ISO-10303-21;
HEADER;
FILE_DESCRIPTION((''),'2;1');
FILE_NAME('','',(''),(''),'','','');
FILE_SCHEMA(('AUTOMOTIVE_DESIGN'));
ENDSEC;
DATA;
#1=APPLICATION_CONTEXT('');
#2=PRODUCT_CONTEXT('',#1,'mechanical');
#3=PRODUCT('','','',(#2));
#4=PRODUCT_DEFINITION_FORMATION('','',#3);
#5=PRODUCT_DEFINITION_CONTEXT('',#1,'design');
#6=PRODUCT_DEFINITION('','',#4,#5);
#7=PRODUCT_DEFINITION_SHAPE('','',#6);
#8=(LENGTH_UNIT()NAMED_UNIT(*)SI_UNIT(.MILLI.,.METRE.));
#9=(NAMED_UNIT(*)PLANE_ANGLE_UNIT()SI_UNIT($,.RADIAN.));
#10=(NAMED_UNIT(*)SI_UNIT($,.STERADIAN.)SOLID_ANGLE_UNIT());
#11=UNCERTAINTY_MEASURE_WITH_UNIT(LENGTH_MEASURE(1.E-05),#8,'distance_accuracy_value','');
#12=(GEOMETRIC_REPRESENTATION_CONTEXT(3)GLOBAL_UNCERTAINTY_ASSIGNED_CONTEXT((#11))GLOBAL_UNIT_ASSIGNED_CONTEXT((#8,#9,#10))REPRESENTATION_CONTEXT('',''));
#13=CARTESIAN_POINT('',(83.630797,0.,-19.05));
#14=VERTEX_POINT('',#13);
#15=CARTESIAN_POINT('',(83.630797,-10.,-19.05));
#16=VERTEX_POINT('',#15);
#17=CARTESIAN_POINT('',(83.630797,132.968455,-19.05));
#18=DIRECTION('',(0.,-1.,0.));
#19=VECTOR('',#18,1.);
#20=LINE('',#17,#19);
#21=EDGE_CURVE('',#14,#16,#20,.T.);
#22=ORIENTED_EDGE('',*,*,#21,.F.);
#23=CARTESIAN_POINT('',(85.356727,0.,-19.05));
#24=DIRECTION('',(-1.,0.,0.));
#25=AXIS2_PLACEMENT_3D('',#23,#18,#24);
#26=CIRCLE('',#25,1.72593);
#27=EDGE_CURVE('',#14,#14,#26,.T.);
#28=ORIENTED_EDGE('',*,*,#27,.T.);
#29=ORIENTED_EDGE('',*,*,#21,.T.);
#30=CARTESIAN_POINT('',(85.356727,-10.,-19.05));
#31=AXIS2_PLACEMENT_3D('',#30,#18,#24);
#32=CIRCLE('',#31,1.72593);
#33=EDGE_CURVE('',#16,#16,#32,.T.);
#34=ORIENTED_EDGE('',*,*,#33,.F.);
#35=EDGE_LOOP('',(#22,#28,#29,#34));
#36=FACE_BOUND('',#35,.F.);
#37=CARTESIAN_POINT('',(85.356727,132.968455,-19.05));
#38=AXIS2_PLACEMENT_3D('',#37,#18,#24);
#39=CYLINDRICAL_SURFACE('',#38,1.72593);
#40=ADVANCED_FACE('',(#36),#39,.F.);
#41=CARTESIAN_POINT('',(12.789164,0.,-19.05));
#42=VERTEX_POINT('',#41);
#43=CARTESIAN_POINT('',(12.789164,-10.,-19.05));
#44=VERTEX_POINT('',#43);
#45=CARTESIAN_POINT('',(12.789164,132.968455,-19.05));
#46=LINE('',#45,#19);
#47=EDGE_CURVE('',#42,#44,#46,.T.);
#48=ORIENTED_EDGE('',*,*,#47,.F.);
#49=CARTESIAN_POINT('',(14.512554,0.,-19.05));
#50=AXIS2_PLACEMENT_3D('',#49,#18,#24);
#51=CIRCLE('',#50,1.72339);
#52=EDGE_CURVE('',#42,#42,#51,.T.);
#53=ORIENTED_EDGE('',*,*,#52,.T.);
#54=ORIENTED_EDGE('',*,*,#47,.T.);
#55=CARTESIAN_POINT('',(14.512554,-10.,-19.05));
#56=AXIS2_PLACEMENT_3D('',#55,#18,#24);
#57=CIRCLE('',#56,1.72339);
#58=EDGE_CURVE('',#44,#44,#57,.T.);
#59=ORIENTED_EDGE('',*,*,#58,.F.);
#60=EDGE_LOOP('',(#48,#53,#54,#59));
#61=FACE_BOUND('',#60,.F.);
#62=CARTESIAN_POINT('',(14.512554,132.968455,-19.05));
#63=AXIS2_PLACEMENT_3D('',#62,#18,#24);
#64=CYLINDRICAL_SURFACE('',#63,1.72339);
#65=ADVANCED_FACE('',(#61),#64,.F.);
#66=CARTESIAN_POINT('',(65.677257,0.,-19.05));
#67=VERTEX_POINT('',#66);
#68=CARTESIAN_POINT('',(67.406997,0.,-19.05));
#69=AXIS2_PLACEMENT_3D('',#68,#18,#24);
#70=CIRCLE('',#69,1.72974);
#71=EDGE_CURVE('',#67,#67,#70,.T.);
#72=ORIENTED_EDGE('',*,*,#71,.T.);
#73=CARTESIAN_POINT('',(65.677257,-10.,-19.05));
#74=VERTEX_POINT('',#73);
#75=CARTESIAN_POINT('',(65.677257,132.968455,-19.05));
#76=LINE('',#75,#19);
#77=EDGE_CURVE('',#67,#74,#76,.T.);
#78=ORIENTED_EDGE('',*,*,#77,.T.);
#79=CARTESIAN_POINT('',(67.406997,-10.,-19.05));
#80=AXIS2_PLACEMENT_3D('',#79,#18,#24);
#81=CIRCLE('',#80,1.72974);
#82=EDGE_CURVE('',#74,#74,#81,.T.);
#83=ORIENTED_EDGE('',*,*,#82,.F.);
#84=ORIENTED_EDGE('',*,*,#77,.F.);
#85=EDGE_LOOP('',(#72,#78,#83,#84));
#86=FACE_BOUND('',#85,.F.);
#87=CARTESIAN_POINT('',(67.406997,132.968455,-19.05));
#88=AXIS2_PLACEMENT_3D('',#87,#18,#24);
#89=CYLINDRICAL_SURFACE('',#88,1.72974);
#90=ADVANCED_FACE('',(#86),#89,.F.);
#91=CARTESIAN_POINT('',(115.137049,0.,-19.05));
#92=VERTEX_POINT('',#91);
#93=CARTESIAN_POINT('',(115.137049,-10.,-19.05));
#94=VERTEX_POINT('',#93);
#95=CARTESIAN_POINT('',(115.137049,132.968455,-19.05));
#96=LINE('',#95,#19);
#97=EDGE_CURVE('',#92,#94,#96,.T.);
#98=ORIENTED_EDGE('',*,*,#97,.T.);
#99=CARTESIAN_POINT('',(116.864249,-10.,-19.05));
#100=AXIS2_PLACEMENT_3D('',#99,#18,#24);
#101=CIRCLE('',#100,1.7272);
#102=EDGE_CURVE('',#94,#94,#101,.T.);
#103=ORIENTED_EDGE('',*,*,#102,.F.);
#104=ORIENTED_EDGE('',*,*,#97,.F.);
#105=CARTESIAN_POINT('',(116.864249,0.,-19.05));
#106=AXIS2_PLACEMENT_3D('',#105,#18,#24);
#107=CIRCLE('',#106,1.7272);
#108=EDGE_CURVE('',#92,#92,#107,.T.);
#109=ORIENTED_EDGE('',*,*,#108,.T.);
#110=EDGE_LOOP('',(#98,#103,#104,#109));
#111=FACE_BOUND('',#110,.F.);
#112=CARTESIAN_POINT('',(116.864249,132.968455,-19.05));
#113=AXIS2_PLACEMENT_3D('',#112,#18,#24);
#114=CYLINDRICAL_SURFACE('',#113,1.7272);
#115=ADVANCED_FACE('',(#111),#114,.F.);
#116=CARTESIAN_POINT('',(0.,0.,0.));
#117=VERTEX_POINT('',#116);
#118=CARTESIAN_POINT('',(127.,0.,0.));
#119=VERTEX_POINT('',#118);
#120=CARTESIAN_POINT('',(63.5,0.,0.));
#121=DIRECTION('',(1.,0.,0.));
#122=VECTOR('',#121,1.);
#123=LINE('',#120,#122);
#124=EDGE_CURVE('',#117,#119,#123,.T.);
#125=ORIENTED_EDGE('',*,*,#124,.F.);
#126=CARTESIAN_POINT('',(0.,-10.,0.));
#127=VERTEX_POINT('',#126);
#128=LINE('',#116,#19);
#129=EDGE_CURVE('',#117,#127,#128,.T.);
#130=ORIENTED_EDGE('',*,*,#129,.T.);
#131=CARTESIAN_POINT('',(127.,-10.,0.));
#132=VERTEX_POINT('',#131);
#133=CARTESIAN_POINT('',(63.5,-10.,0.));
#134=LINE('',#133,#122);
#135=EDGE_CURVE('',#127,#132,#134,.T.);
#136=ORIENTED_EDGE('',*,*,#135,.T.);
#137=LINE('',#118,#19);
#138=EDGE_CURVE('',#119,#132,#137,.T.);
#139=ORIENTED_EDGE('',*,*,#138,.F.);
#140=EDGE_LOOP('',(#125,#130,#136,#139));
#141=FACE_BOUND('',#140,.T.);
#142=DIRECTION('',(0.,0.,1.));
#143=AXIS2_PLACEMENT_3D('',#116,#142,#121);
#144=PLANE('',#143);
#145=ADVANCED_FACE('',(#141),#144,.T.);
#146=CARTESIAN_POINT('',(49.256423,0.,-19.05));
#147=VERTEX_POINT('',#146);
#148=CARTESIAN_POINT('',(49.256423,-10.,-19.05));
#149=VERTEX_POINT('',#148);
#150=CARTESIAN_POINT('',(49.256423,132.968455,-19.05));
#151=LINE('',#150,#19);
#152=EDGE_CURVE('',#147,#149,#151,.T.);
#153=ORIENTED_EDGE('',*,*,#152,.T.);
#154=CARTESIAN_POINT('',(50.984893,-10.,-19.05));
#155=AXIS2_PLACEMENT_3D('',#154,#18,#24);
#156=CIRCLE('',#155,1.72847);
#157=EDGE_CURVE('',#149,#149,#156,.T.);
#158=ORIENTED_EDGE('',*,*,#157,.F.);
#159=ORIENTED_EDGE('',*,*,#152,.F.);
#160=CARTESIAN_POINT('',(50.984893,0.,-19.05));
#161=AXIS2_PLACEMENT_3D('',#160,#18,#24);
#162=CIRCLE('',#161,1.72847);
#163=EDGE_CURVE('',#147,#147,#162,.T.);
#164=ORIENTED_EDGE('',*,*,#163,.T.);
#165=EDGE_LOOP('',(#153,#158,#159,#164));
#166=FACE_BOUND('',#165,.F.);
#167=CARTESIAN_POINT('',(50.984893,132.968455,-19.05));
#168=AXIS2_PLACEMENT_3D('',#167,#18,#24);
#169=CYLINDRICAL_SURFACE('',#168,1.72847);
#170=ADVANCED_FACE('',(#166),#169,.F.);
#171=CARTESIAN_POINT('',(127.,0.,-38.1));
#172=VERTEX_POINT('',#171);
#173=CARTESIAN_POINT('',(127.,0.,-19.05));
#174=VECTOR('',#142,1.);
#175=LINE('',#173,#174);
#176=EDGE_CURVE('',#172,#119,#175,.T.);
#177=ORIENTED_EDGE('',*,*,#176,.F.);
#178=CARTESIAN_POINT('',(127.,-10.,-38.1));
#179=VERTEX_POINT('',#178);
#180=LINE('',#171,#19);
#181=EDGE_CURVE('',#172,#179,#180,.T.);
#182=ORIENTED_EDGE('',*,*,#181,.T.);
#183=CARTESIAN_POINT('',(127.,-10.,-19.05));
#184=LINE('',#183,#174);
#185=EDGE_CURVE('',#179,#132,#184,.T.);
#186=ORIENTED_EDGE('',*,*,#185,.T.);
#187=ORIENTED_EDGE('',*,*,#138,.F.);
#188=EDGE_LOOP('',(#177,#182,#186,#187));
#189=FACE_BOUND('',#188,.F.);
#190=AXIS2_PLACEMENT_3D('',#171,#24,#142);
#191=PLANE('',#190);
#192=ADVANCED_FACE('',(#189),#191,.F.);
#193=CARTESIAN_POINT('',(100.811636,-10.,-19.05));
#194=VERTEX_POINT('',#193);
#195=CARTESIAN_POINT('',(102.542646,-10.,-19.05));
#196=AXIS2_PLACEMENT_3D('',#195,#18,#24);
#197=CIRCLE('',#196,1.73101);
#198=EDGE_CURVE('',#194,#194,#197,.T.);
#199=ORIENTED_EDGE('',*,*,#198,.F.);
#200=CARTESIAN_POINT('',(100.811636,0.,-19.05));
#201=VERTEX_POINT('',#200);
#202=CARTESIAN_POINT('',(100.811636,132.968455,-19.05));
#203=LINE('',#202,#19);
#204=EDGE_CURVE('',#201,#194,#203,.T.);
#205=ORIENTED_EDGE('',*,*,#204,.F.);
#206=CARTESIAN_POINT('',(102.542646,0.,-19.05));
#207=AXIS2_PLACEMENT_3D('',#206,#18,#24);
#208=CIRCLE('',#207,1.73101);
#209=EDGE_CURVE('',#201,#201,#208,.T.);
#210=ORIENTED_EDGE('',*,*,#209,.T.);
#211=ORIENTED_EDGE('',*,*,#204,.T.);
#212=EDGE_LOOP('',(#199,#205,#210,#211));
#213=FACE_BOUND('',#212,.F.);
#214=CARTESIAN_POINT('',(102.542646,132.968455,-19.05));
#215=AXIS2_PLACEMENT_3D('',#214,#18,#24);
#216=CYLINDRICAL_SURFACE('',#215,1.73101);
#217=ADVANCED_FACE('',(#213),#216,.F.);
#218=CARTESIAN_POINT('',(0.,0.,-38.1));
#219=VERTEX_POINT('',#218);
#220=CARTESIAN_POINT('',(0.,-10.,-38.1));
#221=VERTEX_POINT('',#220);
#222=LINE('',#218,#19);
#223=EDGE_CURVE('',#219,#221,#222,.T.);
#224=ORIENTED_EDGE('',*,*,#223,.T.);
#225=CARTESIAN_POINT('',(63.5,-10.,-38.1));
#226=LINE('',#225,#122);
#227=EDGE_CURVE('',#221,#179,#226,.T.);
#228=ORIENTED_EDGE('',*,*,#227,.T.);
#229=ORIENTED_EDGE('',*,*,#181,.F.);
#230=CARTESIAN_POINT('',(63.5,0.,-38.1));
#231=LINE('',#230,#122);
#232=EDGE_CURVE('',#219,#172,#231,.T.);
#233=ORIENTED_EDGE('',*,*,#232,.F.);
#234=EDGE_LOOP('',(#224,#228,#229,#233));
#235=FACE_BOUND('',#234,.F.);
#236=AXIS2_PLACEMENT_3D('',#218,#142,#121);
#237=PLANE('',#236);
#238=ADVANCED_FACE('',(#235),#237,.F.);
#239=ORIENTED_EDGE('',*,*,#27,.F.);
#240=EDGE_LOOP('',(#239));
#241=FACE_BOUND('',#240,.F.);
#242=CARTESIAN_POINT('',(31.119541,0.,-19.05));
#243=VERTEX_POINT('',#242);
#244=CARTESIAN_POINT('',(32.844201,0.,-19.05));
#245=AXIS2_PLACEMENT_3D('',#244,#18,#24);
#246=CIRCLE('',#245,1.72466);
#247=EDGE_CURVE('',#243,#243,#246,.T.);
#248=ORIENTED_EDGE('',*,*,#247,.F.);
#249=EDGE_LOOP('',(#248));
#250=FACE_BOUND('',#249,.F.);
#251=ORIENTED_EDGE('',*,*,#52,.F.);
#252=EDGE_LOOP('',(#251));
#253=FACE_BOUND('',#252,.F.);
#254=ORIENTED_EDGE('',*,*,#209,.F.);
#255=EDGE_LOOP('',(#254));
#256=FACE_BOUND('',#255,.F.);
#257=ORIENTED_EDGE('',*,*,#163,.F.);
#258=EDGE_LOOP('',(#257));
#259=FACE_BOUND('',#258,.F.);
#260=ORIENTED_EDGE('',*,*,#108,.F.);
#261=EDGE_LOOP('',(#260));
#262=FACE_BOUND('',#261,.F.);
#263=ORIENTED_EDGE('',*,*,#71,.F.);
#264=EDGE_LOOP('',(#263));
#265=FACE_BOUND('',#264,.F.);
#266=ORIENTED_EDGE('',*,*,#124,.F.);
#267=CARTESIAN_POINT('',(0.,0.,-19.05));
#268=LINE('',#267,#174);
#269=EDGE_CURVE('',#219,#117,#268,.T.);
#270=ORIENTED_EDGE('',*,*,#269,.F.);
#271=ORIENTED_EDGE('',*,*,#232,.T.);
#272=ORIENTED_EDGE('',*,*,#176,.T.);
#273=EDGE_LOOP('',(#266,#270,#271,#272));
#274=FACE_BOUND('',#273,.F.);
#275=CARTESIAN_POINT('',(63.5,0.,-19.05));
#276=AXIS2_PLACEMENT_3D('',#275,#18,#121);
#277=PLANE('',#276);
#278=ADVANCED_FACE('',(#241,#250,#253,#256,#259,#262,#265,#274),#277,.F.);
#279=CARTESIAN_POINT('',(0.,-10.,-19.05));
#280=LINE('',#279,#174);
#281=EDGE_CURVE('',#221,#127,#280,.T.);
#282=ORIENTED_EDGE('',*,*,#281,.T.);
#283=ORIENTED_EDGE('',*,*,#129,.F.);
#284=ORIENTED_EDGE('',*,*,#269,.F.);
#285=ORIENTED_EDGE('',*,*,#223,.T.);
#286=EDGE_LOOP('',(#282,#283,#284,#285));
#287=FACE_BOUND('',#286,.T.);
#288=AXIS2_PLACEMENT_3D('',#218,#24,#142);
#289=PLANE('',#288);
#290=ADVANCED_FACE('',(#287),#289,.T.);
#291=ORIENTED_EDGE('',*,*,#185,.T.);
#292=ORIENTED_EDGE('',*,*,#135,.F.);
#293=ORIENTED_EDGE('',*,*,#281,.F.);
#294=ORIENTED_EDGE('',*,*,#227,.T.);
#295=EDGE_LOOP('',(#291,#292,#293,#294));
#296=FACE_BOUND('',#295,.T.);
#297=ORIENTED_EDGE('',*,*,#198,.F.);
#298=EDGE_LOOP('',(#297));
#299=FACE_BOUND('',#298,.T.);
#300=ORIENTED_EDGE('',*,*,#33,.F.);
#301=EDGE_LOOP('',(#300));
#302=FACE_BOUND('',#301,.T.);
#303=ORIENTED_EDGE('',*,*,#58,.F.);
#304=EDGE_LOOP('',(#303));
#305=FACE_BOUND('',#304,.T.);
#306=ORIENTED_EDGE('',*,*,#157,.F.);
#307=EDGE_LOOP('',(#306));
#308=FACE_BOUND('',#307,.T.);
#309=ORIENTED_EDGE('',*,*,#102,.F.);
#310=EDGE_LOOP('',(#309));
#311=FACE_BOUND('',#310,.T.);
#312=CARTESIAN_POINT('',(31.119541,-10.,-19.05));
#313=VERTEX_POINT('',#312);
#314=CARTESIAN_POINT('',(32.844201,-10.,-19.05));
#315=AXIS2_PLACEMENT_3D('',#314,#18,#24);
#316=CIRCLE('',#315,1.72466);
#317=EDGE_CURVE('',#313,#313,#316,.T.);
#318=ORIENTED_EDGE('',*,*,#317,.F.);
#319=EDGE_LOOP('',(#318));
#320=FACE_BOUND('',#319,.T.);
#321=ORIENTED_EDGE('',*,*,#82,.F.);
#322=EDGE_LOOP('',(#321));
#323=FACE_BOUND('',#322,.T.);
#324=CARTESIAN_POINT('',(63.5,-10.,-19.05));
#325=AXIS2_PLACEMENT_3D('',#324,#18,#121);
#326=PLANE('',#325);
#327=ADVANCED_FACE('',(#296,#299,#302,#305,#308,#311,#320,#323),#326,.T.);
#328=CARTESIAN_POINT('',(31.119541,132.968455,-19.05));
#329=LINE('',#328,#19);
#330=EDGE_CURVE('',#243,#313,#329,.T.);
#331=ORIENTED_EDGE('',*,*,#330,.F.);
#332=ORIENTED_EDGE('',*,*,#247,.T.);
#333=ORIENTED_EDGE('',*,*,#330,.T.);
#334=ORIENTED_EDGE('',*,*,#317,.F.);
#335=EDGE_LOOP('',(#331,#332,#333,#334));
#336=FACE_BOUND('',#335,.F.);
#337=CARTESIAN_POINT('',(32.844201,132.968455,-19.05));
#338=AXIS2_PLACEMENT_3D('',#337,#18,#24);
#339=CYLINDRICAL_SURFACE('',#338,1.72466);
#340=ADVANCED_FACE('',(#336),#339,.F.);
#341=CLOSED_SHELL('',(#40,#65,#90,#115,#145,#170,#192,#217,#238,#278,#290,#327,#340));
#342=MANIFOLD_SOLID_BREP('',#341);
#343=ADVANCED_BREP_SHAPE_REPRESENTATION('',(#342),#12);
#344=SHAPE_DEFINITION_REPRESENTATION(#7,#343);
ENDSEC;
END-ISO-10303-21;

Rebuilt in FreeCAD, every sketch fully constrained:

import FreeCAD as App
import Part
import Sketcher
Q = App.Units.Quantity


def add_polygon(sketch, points):
    """Adds a closed chain of lines whose ends are joined by coincident constraints."""
    first, n = sketch.GeometryCount, len(points)
    for a, b in zip(points, points[1:] + points[:1]):
        sketch.addGeometry(Part.LineSegment(App.Vector(*a, 0), App.Vector(*b, 0)), False)
    for i in range(n):
        sketch.addConstraint(Sketcher.Constraint("Coincident", first + i, 2, first + (i + 1) % n, 1))

doc = App.newDocument("Part")
body = doc.addObject("PartDesign::Body", "Body")

sketch1 = doc.addObject("Sketcher::SketchObject", "Sketch")
body.addObject(sketch1)
sketch1.AttachmentSupport = (doc.XZ_Plane, [""])
sketch1.MapMode = "FlatFace"
add_polygon(sketch1, [(0, 0), (0, -38), (127, -38), (127, 0)])
sketch1.addConstraint([
    Sketcher.Constraint("Vertical", 0),
    Sketcher.Constraint("Horizontal", 1),
    Sketcher.Constraint("Vertical", 2),
    Sketcher.Constraint("Horizontal", 3),
    Sketcher.Constraint("Coincident", 3, 2, -1, 1),
    Sketcher.Constraint("DistanceX", 1, 1, 1, 2, Q("5 in")),
    Sketcher.Constraint("DistanceY", 0, 2, 0, 1, Q("1.5 in")),
])
pad1 = doc.addObject("PartDesign::Pad", "Pad")
body.addObject(pad1)
pad1.Profile = sketch1
pad1.Length = 10

sketch2 = doc.addObject("Sketcher::SketchObject", "Sketch001")
body.addObject(sketch2)
sketch2.AttachmentSupport = (doc.XZ_Plane, [""])
sketch2.MapMode = "FlatFace"
sketch2.addGeometry(Part.Circle(App.Vector(14.5, -19.1, 0), App.Vector(0, 0, 1), 1.7), False)
sketch2.addConstraint([
    Sketcher.Constraint("Diameter", 0, Q("0.1357 in")),
    Sketcher.Constraint("DistanceY", 0, 3, -1, 1, Q("0.75 in")),
    Sketcher.Constraint("DistanceX", -1, 1, 0, 3, 14.512554),
])
doc.recompute()
hole = doc.addObject("PartDesign::Hole", "Hole")
body.addObject(hole)
hole.Profile = sketch2
hole.ThreadType = "None"
hole.Diameter = Q("0.1357 in")
hole.DepthType = "ThroughAll"
hole.Reversed = True

sketch3 = doc.addObject("Sketcher::SketchObject", "Sketch002")
body.addObject(sketch3)
sketch3.AttachmentSupport = (doc.XZ_Plane, [""])
sketch3.MapMode = "FlatFace"
sketch3.addGeometry(Part.Circle(App.Vector(32.8, -19.1, 0), App.Vector(0, 0, 1), 1.7), False)
sketch3.addConstraint([
    Sketcher.Constraint("Diameter", 0, Q("0.1358 in")),
    Sketcher.Constraint("DistanceY", 0, 3, -1, 1, Q("0.75 in")),
    Sketcher.Constraint("DistanceX", -1, 1, 0, 3, 32.844201),
])
doc.recompute()
hole2 = doc.addObject("PartDesign::Hole", "Hole001")
body.addObject(hole2)
hole2.Profile = sketch3
hole2.ThreadType = "None"
hole2.Diameter = Q("0.1358 in")
hole2.DepthType = "ThroughAll"
hole2.Reversed = True

sketch4 = doc.addObject("Sketcher::SketchObject", "Sketch003")
body.addObject(sketch4)
sketch4.AttachmentSupport = (doc.XZ_Plane, [""])
sketch4.MapMode = "FlatFace"
sketch4.addGeometry(Part.Circle(App.Vector(85.4, -19.1, 0), App.Vector(0, 0, 1), 1.7), False)
sketch4.addConstraint([
    Sketcher.Constraint("Diameter", 0, Q("0.1359 in")),
    Sketcher.Constraint("DistanceY", 0, 3, -1, 1, Q("0.75 in")),
    Sketcher.Constraint("DistanceX", -1, 1, 0, 3, 85.356727),
])
doc.recompute()
hole3 = doc.addObject("PartDesign::Hole", "Hole002")
body.addObject(hole3)
hole3.Profile = sketch4
hole3.ThreadType = "None"
hole3.Diameter = Q("0.1359 in")
hole3.DepthType = "ThroughAll"
hole3.Reversed = True

sketch5 = doc.addObject("Sketcher::SketchObject", "Sketch004")
body.addObject(sketch5)
sketch5.AttachmentSupport = (doc.XZ_Plane, [""])
sketch5.MapMode = "FlatFace"
sketch5.addGeometry(Part.Circle(App.Vector(116.9, -19.1, 0), App.Vector(0, 0, 1), 1.7), False)
sketch5.addConstraint([
    Sketcher.Constraint("Diameter", 0, Q("0.136 in")),
    Sketcher.Constraint("DistanceY", 0, 3, -1, 1, Q("0.75 in")),
    Sketcher.Constraint("DistanceX", -1, 1, 0, 3, 116.864249),
])
doc.recompute()
hole4 = doc.addObject("PartDesign::Hole", "Hole003")
body.addObject(hole4)
hole4.Profile = sketch5
hole4.ThreadType = "None"
hole4.Diameter = Q("0.136 in")
hole4.DepthType = "ThroughAll"
hole4.Reversed = True

sketch6 = doc.addObject("Sketcher::SketchObject", "Sketch005")
body.addObject(sketch6)
sketch6.AttachmentSupport = (doc.XZ_Plane, [""])
sketch6.MapMode = "FlatFace"
sketch6.addGeometry(Part.Circle(App.Vector(51, -19.1, 0), App.Vector(0, 0, 1), 1.7), False)
sketch6.addConstraint([
    Sketcher.Constraint("Diameter", 0, Q("0.1361 in")),
    Sketcher.Constraint("DistanceY", 0, 3, -1, 1, Q("0.75 in")),
    Sketcher.Constraint("DistanceX", -1, 1, 0, 3, 50.984893),
])
doc.recompute()
hole5 = doc.addObject("PartDesign::Hole", "Hole004")
body.addObject(hole5)
hole5.Profile = sketch6
hole5.ThreadType = "None"
hole5.Diameter = Q("0.1361 in")
hole5.DepthType = "ThroughAll"
hole5.Reversed = True

sketch7 = doc.addObject("Sketcher::SketchObject", "Sketch006")
body.addObject(sketch7)
sketch7.AttachmentSupport = (doc.XZ_Plane, [""])
sketch7.MapMode = "FlatFace"
sketch7.addGeometry(Part.Circle(App.Vector(67.4, -19.1, 0), App.Vector(0, 0, 1), 1.7), False)
sketch7.addConstraint([
    Sketcher.Constraint("Diameter", 0, Q("0.1362 in")),
    Sketcher.Constraint("DistanceY", 0, 3, -1, 1, Q("0.75 in")),
    Sketcher.Constraint("DistanceX", -1, 1, 0, 3, 67.406997),
])
doc.recompute()
hole6 = doc.addObject("PartDesign::Hole", "Hole005")
body.addObject(hole6)
hole6.Profile = sketch7
hole6.ThreadType = "None"
hole6.Diameter = Q("0.1362 in")
hole6.DepthType = "ThroughAll"
hole6.Reversed = True

sketch8 = doc.addObject("Sketcher::SketchObject", "Sketch007")
body.addObject(sketch8)
sketch8.AttachmentSupport = (doc.XZ_Plane, [""])
sketch8.MapMode = "FlatFace"
sketch8.addGeometry(Part.Circle(App.Vector(102.5, -19.1, 0), App.Vector(0, 0, 1), 1.7), False)
sketch8.addConstraint([
    Sketcher.Constraint("Diameter", 0, Q("0.1363 in")),
    Sketcher.Constraint("DistanceY", 0, 3, -1, 1, Q("0.75 in")),
    Sketcher.Constraint("DistanceX", -1, 1, 0, 3, 102.542646),
])
doc.recompute()
hole7 = doc.addObject("PartDesign::Hole", "Hole006")
body.addObject(hole7)
hole7.Profile = sketch8
hole7.ThreadType = "None"
hole7.Diameter = Q("0.1363 in")
hole7.DepthType = "ThroughAll"
hole7.Reversed = True

doc.recompute()
